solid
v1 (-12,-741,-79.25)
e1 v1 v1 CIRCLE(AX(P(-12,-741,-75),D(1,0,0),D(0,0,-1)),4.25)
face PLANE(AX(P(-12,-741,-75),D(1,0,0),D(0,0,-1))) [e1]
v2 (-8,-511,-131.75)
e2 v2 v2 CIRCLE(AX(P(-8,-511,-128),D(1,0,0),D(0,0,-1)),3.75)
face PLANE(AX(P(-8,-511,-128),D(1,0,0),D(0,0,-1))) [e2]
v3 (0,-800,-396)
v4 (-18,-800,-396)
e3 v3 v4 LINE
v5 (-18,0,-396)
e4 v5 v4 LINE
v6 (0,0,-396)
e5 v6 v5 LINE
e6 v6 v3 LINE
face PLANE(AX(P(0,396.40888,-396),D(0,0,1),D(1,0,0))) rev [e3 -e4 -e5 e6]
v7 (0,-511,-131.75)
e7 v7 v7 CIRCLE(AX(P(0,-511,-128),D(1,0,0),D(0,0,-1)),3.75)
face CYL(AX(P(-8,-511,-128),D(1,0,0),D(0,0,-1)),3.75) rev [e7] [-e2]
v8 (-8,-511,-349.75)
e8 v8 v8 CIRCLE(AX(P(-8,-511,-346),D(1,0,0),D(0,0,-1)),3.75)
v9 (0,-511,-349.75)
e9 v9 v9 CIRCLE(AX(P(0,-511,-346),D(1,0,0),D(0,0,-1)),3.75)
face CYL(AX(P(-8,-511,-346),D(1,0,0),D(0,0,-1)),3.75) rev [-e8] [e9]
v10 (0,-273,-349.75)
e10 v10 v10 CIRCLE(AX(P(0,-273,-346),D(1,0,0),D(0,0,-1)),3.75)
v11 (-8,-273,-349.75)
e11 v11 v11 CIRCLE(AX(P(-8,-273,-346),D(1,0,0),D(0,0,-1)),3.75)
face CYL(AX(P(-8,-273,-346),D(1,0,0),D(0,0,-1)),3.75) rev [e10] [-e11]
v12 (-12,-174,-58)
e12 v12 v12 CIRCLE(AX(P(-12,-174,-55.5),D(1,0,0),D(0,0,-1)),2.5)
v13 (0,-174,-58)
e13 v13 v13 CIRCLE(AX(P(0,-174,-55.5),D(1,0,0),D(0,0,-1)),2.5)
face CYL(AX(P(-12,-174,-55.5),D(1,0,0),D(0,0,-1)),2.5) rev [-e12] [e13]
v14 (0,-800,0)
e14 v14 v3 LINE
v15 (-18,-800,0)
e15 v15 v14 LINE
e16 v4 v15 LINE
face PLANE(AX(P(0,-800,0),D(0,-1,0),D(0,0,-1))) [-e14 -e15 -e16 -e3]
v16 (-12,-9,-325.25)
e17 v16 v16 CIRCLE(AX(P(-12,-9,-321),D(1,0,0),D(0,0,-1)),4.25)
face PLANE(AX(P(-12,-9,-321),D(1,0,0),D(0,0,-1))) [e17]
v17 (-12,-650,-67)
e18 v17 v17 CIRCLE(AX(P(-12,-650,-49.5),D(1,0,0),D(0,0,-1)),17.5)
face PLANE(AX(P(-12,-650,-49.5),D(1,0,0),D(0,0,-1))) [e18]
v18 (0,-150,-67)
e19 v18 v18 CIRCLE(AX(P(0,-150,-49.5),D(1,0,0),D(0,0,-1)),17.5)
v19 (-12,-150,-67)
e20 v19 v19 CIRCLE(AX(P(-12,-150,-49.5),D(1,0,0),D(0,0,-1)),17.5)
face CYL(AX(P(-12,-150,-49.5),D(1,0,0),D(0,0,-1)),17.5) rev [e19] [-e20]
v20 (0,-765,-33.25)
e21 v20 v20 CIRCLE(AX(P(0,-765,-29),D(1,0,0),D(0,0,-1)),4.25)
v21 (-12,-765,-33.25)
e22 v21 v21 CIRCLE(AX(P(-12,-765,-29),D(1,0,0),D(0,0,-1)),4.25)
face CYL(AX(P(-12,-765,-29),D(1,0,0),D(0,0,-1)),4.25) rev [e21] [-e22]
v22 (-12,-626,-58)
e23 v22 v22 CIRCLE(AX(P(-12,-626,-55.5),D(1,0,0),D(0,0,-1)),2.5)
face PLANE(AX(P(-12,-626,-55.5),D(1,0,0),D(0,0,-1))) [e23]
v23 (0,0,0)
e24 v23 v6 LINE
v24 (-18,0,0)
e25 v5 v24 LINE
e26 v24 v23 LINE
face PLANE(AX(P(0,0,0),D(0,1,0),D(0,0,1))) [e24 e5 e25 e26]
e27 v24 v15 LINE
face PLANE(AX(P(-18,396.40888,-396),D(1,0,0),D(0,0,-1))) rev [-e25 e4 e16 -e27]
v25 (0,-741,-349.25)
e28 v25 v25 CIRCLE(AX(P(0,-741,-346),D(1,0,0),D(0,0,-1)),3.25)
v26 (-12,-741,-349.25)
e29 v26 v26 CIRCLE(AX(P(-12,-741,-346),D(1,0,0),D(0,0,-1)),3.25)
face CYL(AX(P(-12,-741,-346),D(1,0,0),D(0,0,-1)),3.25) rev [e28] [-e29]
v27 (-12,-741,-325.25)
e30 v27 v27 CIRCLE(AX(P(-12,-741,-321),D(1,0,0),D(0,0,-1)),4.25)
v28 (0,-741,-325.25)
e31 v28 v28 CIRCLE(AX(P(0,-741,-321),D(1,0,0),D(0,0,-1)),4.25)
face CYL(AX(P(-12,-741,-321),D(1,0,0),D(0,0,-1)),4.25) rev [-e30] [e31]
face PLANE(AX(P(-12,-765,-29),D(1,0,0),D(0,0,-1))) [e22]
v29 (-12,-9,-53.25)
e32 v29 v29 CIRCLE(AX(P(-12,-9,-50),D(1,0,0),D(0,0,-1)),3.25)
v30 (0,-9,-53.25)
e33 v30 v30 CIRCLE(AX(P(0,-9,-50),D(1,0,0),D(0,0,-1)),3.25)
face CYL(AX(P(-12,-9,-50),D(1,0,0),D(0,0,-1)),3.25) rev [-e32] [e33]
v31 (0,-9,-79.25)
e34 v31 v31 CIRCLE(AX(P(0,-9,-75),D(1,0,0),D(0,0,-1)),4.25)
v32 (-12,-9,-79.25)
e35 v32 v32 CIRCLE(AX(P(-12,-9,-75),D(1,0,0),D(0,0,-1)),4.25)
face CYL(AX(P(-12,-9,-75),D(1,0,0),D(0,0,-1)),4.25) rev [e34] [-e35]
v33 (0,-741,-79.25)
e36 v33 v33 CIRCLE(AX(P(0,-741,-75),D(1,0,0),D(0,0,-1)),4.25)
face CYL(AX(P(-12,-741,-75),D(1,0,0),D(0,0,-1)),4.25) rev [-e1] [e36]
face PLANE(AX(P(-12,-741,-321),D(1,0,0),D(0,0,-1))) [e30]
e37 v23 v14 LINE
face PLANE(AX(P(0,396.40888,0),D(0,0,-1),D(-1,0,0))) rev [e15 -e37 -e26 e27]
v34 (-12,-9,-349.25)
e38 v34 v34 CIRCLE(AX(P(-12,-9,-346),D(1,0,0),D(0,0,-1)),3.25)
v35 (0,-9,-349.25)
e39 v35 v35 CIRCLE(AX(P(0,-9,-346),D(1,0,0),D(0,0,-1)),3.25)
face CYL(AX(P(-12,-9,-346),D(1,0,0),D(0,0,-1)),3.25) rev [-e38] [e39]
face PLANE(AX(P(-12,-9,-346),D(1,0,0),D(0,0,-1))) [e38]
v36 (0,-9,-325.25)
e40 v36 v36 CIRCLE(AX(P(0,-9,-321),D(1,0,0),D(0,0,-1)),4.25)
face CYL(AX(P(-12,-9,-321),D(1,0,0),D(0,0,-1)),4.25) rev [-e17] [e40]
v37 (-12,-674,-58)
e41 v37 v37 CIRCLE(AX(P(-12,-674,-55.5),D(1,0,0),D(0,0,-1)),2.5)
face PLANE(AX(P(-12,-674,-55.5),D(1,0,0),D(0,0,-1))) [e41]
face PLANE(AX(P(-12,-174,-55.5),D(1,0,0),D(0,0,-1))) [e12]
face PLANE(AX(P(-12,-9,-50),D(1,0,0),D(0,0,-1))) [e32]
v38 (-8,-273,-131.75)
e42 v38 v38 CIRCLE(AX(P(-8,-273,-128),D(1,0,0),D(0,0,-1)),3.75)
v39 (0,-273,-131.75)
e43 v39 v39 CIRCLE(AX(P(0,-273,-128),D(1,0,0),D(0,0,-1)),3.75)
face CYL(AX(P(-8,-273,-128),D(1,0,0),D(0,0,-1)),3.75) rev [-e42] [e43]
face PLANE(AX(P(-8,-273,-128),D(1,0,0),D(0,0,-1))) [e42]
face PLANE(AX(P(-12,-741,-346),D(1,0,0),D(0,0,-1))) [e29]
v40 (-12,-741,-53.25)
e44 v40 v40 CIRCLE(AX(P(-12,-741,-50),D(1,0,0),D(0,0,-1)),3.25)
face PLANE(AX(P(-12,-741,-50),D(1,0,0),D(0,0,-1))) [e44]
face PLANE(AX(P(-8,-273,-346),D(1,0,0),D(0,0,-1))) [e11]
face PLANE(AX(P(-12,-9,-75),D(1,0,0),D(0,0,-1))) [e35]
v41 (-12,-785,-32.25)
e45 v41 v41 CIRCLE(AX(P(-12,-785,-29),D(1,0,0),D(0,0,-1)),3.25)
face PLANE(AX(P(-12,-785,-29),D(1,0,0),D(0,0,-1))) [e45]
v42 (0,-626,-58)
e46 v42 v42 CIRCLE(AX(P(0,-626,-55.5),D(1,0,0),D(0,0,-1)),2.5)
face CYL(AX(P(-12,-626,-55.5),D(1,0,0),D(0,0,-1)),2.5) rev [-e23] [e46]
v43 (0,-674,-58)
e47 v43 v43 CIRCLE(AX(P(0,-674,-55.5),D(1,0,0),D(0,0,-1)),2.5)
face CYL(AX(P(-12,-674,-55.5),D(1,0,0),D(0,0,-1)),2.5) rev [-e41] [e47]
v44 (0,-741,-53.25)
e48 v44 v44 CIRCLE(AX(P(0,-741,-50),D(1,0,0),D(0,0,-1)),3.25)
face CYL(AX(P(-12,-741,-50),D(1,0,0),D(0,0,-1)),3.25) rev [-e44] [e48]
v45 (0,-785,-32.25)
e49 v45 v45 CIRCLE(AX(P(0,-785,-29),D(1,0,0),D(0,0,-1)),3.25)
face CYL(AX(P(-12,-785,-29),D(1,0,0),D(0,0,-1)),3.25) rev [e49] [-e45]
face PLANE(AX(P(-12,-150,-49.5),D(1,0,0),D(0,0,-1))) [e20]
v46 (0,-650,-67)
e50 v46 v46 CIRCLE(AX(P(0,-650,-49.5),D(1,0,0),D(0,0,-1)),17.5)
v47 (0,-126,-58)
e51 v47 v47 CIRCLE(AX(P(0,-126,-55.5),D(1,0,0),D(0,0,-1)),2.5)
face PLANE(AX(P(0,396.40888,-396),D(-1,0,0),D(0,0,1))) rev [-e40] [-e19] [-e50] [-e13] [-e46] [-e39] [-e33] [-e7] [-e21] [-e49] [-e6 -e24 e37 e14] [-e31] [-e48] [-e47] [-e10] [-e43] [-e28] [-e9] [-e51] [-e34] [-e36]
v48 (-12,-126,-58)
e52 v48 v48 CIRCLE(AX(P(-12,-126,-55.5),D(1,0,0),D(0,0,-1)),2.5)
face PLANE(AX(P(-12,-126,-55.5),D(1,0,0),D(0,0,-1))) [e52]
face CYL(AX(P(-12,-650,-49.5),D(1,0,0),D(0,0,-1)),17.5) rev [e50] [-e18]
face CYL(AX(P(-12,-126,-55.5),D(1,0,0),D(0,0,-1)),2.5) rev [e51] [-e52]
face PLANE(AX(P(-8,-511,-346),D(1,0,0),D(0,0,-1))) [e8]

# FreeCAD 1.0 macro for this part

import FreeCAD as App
import Part
import Sketcher

doc = App.newDocument("Part")
body = doc.addObject("PartDesign::Body", "Body")

# Sketch on XZ plane
sketch1 = body.newObject("Sketcher::SketchObject", "Sketch")
sketch1.AttachmentSupport = (doc.getObject("XZ_Plane"), [""])
sketch1.MapMode = "FlatFace"
sketch1.AttachmentOffset = App.Placement(App.Vector(0, 0, 800), App.Rotation())
sketch1.addGeometry([
    Part.LineSegment(App.Vector(0, 0, 0), App.Vector(0, -396, 0)),
    Part.LineSegment(App.Vector(0, -396, 0), App.Vector(-18, -396, 0)),
    Part.LineSegment(App.Vector(-18, -396, 0), App.Vector(-18, 0, 0)),
    Part.LineSegment(App.Vector(-18, 0, 0), App.Vector(0, 0, 0)),
], False)
sketch1.addConstraint([
    Sketcher.Constraint("Coincident", 0, 2, 1, 1),
    Sketcher.Constraint("Coincident", 1, 2, 2, 1),
    Sketcher.Constraint("Coincident", 2, 2, 3, 1),
    Sketcher.Constraint("Coincident", 3, 2, 0, 1),
    Sketcher.Constraint("Vertical", 0),
    Sketcher.Constraint("Horizontal", 1),
    Sketcher.Constraint("Vertical", 2),
    Sketcher.Constraint("Horizontal", 3),
    Sketcher.Constraint("Coincident", 3, 2, -1, 1),
    Sketcher.Constraint("DistanceX", 1, 2, 1, 1, 18.0),
    Sketcher.Constraint("DistanceY", 0, 2, 0, 1, 396.0),
])
pad1 = body.newObject("PartDesign::Pad", "Pad")
pad1.Profile = sketch1
pad1.Length = 800
pad1.Reversed = True

# Sketch on YZ plane
sketch2 = body.newObject("Sketcher::SketchObject", "Sketch001")
sketch2.AttachmentSupport = (doc.getObject("YZ_Plane"), [""])
sketch2.MapMode = "FlatFace"
sketch2.addGeometry([
    Part.Circle(App.Vector(-511, -128, 0), App.Vector(0, 0, 1), 3.8),
    Part.Circle(App.Vector(-511, -346, 0), App.Vector(0, 0, 1), 3.8),
    Part.Circle(App.Vector(-273, -346, 0), App.Vector(0, 0, 1), 3.8),
    Part.Circle(App.Vector(-273, -128, 0), App.Vector(0, 0, 1), 3.8),
], False)
sketch2.addConstraint([
    Sketcher.Constraint("Equal", 0, 1),
    Sketcher.Constraint("Equal", 1, 2),
    Sketcher.Constraint("Equal", 2, 3),
    Sketcher.Constraint("Horizontal", 1, 3, 2, 3),
    Sketcher.Constraint("Horizontal", 0, 3, 3, 3),
    Sketcher.Constraint("Vertical", 0, 3, 1, 3),
    Sketcher.Constraint("Vertical", 2, 3, 3, 3),
    Sketcher.Constraint("Diameter", 0, 7.5),
    Sketcher.Constraint("DistanceX", 0, 3, -1, 1, 511.0),
    Sketcher.Constraint("DistanceY", 0, 3, -1, 1, 128.0),
    Sketcher.Constraint("DistanceY", 1, 3, -1, 1, 346.0),
    Sketcher.Constraint("DistanceX", 2, 3, -1, 1, 273.0),
])
pocket1 = body.newObject("PartDesign::Pocket", "Pocket")
pocket1.Profile = sketch2
pocket1.Length = 8

# Sketch on YZ plane
sketch3 = body.newObject("Sketcher::SketchObject", "Sketch002")
sketch3.AttachmentSupport = (doc.getObject("YZ_Plane"), [""])
sketch3.MapMode = "FlatFace"
sketch3.addGeometry([
    Part.Circle(App.Vector(-9, -50, 0), App.Vector(0, 0, 1), 3.2),  # 0
    Part.Circle(App.Vector(-9, -346, 0), App.Vector(0, 0, 1), 3.2),  # 1
    Part.Circle(App.Vector(-9, -75, 0), App.Vector(0, 0, 1), 4.2),  # 2
    Part.Circle(App.Vector(-9, -321, 0), App.Vector(0, 0, 1), 4.2),  # 3
    Part.Circle(App.Vector(-741, -50, 0), App.Vector(0, 0, 1), 3.2),  # 4
    Part.Circle(App.Vector(-741, -75, 0), App.Vector(0, 0, 1), 4.2),  # 5
    Part.Circle(App.Vector(-741, -321, 0), App.Vector(0, 0, 1), 4.2),  # 6
    Part.Circle(App.Vector(-741, -346, 0), App.Vector(0, 0, 1), 3.2),  # 7
    Part.Circle(App.Vector(-765, -29, 0), App.Vector(0, 0, 1), 4.2),  # 8
    Part.Circle(App.Vector(-785, -29, 0), App.Vector(0, 0, 1), 3.2),  # 9
], False)
sketch3.addConstraint([
    Sketcher.Constraint("Equal", 0, 1),
    Sketcher.Constraint("Equal", 2, 3),
    Sketcher.Constraint("Equal", 1, 4),
    Sketcher.Constraint("Equal", 3, 5),
    Sketcher.Constraint("Equal", 5, 6),
    Sketcher.Constraint("Equal", 4, 7),
    Sketcher.Constraint("Equal", 6, 8),
    Sketcher.Constraint("Equal", 7, 9),
    Sketcher.Constraint("Horizontal", 0, 3, 4, 3),
    Sketcher.Constraint("Horizontal", 2, 3, 5, 3),
    Sketcher.Constraint("Horizontal", 3, 3, 6, 3),
    Sketcher.Constraint("Horizontal", 1, 3, 7, 3),
    Sketcher.Constraint("Horizontal", 8, 3, 9, 3),
    Sketcher.Constraint("Vertical", 0, 3, 1, 3),
    Sketcher.Constraint("Vertical", 1, 3, 2, 3),
    Sketcher.Constraint("Vertical", 2, 3, 3, 3),
    Sketcher.Constraint("Vertical", 4, 3, 5, 3),
    Sketcher.Constraint("Vertical", 5, 3, 6, 3),
    Sketcher.Constraint("Vertical", 6, 3, 7, 3),
    Sketcher.Constraint("Diameter", 0, 6.5),
    Sketcher.Constraint("Diameter", 2, 8.5),
    Sketcher.Constraint("DistanceX", 0, 3, -1, 1, 9.0),
    Sketcher.Constraint("DistanceY", 0, 3, -1, 1, 50.0),
    Sketcher.Constraint("DistanceY", 1, 3, -1, 1, 346.0),
    Sketcher.Constraint("DistanceY", 2, 3, -1, 1, 75.0),
    Sketcher.Constraint("DistanceY", 3, 3, -1, 1, 321.0),
    Sketcher.Constraint("DistanceX", 4, 3, -1, 1, 741.0),
    Sketcher.Constraint("DistanceX", 8, 3, -1, 1, 765.0),
    Sketcher.Constraint("DistanceY", 8, 3, -1, 1, 29.0),
    Sketcher.Constraint("DistanceX", 9, 3, -1, 1, 785.0),
])
pocket2 = body.newObject("PartDesign::Pocket", "Pocket001")
pocket2.Profile = sketch3
pocket2.Length = 12

# Sketch on YZ plane
sketch4 = body.newObject("Sketcher::SketchObject", "Sketch003")
sketch4.AttachmentSupport = (doc.getObject("YZ_Plane"), [""])
sketch4.MapMode = "FlatFace"
sketch4.addGeometry([
    Part.Circle(App.Vector(-650, -49.5, 0), App.Vector(0, 0, 1), 17.5),  # 0
    Part.Circle(App.Vector(-626, -55.5, 0), App.Vector(0, 0, 1), 2.5),  # 1
    Part.Circle(App.Vector(-674, -55.5, 0), App.Vector(0, 0, 1), 2.5),  # 2
    Part.Circle(App.Vector(-150, -49.5, 0), App.Vector(0, 0, 1), 17.5),  # 3
    Part.Circle(App.Vector(-126, -55.5, 0), App.Vector(0, 0, 1), 2.5),  # 4
    Part.Circle(App.Vector(-174, -55.5, 0), App.Vector(0, 0, 1), 2.5),  # 5
], False)
sketch4.addConstraint([
    Sketcher.Constraint("Equal", 1, 2),
    Sketcher.Constraint("Equal", 0, 3),
    Sketcher.Constraint("Equal", 2, 4),
    Sketcher.Constraint("Equal", 4, 5),
    Sketcher.Constraint("Horizontal", 1, 3, 2, 3),
    Sketcher.Constraint("Horizontal", 0, 3, 3, 3),
    Sketcher.Constraint("Horizontal", 2, 3, 4, 3),
    Sketcher.Constraint("Horizontal", 4, 3, 5, 3),
    Sketcher.Constraint("Diameter", 0, 35.0),
    Sketcher.Constraint("Diameter", 1, 5.0),
    Sketcher.Constraint("DistanceX", 0, 3, -1, 1, 650.0),
    Sketcher.Constraint("DistanceX", 1, 3, -1, 1, 626.0),
    Sketcher.Constraint("DistanceX", 2, 3, -1, 1, 674.0),
    Sketcher.Constraint("DistanceX", 3, 3, -1, 1, 150.0),
    Sketcher.Constraint("DistanceX", 4, 3, -1, 1, 126.0),
    Sketcher.Constraint("DistanceX", 5, 3, -1, 1, 174.0),
    Sketcher.Constraint("DistanceY", 1, 3, 0, 3, 6.0),
    Sketcher.Constraint("DistanceY", 0, 3, -1, 1, 49.5),
])
pocket3 = body.newObject("PartDesign::Pocket", "Pocket002")
pocket3.Profile = sketch4
pocket3.Length = 12

doc.recompute()
